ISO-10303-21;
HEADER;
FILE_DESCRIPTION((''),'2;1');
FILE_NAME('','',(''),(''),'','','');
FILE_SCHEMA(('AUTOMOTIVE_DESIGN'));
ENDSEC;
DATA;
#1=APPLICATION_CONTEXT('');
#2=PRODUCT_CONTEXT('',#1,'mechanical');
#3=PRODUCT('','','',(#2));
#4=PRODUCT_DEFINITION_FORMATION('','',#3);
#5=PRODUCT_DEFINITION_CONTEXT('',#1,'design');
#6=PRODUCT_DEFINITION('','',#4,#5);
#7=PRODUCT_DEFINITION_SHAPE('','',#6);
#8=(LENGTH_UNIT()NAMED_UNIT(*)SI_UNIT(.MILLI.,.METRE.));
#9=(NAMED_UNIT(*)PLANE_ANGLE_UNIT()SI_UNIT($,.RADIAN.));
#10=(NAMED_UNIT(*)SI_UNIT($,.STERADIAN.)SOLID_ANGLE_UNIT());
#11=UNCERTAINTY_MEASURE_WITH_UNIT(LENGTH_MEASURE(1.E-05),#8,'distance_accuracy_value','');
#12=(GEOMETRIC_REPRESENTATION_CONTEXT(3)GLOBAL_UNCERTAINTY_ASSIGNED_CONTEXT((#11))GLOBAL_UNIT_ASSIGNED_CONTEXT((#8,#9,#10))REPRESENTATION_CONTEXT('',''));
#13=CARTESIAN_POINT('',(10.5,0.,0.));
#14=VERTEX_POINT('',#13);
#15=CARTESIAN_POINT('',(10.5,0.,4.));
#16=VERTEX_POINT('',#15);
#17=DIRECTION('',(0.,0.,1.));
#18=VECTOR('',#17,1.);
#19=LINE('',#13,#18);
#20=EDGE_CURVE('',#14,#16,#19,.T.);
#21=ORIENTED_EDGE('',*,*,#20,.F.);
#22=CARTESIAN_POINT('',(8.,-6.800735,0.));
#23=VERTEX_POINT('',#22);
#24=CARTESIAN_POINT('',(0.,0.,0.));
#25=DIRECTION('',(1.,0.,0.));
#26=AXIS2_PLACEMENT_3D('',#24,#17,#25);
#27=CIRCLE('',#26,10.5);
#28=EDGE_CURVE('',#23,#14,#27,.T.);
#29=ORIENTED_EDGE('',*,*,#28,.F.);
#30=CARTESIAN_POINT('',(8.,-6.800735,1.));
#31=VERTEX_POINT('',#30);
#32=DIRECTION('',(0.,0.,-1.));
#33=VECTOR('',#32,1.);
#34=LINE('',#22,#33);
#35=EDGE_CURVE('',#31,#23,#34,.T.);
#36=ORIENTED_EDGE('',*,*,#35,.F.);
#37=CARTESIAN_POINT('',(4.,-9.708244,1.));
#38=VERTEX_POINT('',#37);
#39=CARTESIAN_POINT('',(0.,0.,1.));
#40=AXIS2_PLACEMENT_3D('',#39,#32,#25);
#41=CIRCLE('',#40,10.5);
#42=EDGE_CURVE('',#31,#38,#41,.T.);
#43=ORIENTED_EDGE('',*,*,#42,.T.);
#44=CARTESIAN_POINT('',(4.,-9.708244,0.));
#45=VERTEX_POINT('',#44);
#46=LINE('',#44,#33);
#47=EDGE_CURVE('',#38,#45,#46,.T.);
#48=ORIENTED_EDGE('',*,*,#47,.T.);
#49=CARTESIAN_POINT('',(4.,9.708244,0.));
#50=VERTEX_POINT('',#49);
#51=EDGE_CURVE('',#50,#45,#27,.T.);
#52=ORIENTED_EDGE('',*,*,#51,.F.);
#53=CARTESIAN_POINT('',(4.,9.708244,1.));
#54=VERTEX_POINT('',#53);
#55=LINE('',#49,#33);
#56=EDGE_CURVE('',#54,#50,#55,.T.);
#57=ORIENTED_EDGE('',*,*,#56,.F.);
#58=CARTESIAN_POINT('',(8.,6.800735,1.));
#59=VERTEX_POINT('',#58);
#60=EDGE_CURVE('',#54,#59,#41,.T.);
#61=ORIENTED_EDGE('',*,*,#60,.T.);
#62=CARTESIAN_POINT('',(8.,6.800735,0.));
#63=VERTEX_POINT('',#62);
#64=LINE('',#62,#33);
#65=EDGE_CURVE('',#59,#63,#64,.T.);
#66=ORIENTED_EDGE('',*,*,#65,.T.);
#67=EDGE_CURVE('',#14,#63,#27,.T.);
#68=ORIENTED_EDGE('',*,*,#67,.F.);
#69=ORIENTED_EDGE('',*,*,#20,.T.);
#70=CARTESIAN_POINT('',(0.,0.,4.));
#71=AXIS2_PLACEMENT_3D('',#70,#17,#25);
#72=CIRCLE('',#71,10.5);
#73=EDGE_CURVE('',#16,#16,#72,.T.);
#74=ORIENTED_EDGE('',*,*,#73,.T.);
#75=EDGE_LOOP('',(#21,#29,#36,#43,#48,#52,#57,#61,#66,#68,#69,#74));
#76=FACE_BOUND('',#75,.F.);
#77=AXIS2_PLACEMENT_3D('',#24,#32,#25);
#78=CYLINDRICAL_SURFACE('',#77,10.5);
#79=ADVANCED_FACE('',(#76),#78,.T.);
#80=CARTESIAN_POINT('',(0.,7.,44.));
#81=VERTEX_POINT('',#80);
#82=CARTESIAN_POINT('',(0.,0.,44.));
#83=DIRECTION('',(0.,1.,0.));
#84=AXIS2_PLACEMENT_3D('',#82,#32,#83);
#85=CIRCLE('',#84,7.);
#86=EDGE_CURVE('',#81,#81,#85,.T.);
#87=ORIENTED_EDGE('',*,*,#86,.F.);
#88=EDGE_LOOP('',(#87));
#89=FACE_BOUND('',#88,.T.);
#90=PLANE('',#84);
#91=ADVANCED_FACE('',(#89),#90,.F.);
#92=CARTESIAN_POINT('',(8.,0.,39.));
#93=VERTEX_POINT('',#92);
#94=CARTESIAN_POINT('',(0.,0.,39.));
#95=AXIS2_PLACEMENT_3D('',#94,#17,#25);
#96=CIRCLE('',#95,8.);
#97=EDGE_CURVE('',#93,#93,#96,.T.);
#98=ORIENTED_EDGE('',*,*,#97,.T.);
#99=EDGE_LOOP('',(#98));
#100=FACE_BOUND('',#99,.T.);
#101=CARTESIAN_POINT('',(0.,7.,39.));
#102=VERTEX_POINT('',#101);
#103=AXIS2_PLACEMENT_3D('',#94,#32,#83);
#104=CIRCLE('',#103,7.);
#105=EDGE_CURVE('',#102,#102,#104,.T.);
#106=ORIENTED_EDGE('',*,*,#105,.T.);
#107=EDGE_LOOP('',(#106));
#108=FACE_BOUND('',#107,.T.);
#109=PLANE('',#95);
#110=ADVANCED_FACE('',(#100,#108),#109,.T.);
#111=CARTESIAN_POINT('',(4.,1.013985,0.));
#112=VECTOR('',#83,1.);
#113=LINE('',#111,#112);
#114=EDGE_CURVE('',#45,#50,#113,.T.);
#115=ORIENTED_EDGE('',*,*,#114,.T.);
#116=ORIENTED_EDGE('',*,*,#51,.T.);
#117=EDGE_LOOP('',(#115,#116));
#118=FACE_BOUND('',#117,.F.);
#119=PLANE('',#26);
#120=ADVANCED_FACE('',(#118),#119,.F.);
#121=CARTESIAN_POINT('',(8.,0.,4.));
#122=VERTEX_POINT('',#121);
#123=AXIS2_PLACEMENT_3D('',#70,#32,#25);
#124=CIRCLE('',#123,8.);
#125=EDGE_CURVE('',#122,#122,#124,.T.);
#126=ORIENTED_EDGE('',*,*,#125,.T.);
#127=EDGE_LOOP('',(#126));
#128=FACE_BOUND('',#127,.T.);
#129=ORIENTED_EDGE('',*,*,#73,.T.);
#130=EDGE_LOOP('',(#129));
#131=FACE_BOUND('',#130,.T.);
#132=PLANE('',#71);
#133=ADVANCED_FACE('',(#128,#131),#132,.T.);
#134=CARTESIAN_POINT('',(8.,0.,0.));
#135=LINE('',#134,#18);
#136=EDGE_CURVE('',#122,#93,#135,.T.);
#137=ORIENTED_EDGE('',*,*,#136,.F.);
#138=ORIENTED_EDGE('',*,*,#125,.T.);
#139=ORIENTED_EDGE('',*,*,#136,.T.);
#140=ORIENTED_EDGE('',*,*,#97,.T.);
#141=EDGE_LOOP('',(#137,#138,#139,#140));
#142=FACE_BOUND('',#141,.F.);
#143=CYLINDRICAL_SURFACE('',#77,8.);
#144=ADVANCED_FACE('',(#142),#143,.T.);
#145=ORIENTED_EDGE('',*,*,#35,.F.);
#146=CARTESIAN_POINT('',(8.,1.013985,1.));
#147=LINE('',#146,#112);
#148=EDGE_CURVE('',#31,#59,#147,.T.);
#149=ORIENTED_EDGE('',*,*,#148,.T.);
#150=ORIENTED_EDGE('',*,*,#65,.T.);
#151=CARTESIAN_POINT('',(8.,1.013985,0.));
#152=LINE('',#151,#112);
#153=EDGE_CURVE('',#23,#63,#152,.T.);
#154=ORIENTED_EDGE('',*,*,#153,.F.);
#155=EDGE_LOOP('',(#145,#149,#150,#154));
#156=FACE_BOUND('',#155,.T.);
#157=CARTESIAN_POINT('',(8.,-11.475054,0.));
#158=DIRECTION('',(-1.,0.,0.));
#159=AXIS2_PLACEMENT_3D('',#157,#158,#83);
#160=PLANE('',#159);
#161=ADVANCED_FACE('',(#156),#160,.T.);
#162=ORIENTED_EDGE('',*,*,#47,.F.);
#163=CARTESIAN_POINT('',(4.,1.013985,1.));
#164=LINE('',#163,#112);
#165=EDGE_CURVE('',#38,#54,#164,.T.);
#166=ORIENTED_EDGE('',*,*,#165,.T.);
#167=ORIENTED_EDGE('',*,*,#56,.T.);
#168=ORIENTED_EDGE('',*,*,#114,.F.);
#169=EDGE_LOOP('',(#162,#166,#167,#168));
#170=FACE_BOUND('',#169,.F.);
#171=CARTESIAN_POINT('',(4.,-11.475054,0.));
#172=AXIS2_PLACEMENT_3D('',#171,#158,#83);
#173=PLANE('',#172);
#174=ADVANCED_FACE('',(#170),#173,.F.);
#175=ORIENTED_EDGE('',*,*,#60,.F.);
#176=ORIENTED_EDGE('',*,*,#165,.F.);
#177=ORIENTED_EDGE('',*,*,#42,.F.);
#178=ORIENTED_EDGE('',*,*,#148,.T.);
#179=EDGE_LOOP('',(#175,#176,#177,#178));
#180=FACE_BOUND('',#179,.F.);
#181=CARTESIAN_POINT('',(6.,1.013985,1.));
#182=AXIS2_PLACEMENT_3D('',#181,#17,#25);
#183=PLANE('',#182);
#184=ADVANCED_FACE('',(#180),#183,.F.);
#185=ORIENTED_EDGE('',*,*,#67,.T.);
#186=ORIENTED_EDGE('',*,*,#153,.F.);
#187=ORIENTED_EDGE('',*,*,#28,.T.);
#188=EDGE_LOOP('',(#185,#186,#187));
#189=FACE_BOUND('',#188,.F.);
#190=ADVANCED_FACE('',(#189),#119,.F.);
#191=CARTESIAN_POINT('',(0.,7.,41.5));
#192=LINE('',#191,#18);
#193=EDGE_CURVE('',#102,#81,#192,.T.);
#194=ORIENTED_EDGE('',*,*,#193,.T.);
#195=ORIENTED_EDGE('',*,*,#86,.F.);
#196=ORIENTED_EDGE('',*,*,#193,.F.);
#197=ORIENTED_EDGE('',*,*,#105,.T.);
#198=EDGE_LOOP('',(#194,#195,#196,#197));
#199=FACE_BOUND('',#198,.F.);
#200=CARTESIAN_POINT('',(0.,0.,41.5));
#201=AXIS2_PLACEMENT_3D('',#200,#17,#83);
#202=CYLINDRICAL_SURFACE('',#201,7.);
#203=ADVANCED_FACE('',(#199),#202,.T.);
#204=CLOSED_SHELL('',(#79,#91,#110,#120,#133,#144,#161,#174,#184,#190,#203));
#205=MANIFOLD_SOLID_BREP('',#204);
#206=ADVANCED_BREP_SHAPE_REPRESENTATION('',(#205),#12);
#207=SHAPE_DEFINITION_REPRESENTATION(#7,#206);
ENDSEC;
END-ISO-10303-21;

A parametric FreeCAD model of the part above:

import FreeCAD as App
import Part
import Sketcher

V = App.Vector
Q = App.Units.Quantity

doc = App.newDocument("Part")
body = doc.addObject("PartDesign::Body", "Body")

# Sketch on XY plane
sketch1 = doc.addObject("Sketcher::SketchObject", "Sketch")
body.addObject(sketch1)
sketch1.AttachmentSupport = (doc.XY_Plane, [""])
sketch1.MapMode = "FlatFace"
sketch1.addGeometry(Part.Circle(V(0, 0, 0), V(0, 0, 1), 10), False)
sketch1.addConstraint([
    Sketcher.Constraint("Coincident", 0, 3, -1, 1),
    Sketcher.Constraint("Diameter", 0, Q("21 mm")),
])
pad1 = doc.addObject("PartDesign::Pad", "Pad")
body.addObject(pad1)
pad1.Profile = sketch1
pad1.Length = 4

# Sketch on XY plane
sketch2 = doc.addObject("Sketcher::SketchObject", "Sketch001")
body.addObject(sketch2)
sketch2.AttachmentSupport = (doc.XY_Plane, [""])
sketch2.MapMode = "FlatFace"
sketch2.addGeometry(Part.Circle(V(0, 0, 0), V(0, 0, 1), 8), False)
sketch2.addConstraint([
    Sketcher.Constraint("Coincident", 0, 3, -1, 1),
    Sketcher.Constraint("Diameter", 0, Q("16 mm")),
])
pad2 = doc.addObject("PartDesign::Pad", "Pad001")
body.addObject(pad2)
pad2.Profile = sketch2
pad2.Length = 39

# Sketch on YZ plane
sketch3 = doc.addObject("Sketcher::SketchObject", "Sketch002")
body.addObject(sketch3)
sketch3.AttachmentSupport = (doc.YZ_Plane, [""])
sketch3.MapMode = "FlatFace"
sketch3.addGeometry([
    Part.LineSegment(V(0, 44, 0), V(0, 39, 0)),
    Part.LineSegment(V(0, 39, 0), V(7, 39, 0)),
    Part.LineSegment(V(7, 39, 0), V(7, 44, 0)),
    Part.LineSegment(V(7, 44, 0), V(0, 44, 0)),
], False)
sketch3.addConstraint([
    Sketcher.Constraint("Coincident", 0, 2, 1, 1),
    Sketcher.Constraint("Coincident", 1, 2, 2, 1),
    Sketcher.Constraint("Coincident", 2, 2, 3, 1),
    Sketcher.Constraint("Coincident", 3, 2, 0, 1),
    Sketcher.Constraint("Vertical", 0),
    Sketcher.Constraint("Horizontal", 1),
    Sketcher.Constraint("Vertical", 2),
    Sketcher.Constraint("Horizontal", 3),
    Sketcher.Constraint("PointOnObject", 0, 2, -2),
    Sketcher.Constraint("DistanceX", 1, 1, 1, 2, Q("7 mm")),
    Sketcher.Constraint("DistanceY", 0, 2, 0, 1, Q("5 mm")),
    Sketcher.Constraint("DistanceY", -1, 1, 0, 2, Q("39 mm")),
])
revolution = doc.addObject("PartDesign::Revolution", "Revolution")
body.addObject(revolution)
revolution.Profile = sketch3
revolution.ReferenceAxis = (sketch3, ["V_Axis"])
revolution.Angle = 360

# Sketch on XY plane
sketch4 = doc.addObject("Sketcher::SketchObject", "Sketch003")
body.addObject(sketch4)
sketch4.AttachmentSupport = (doc.XY_Plane, [""])
sketch4.MapMode = "FlatFace"
sketch4.addGeometry([
    Part.LineSegment(V(4, 13.5, 0), V(4, -11.5, 0)),
    Part.LineSegment(V(4, -11.5, 0), V(8, -11.5, 0)),
    Part.LineSegment(V(8, -11.5, 0), V(8, 13.5, 0)),
    Part.LineSegment(V(8, 13.5, 0), V(4, 13.5, 0)),
], False)
sketch4.addConstraint([
    Sketcher.Constraint("Coincident", 0, 2, 1, 1),
    Sketcher.Constraint("Coincident", 1, 2, 2, 1),
    Sketcher.Constraint("Coincident", 2, 2, 3, 1),
    Sketcher.Constraint("Coincident", 3, 2, 0, 1),
    Sketcher.Constraint("Vertical", 0),
    Sketcher.Constraint("Horizontal", 1),
    Sketcher.Constraint("Vertical", 2),
    Sketcher.Constraint("Horizontal", 3),
    Sketcher.Constraint("DistanceX", 1, 1, 1, 2, Q("4 mm")),
    Sketcher.Constraint("DistanceX", -1, 1, 0, 2, Q("4 mm")),
    Sketcher.Constraint("DistanceY", 0, 2, 0, 1, Q("24.978078 mm")),
    Sketcher.Constraint("DistanceY", 0, 2, -1, 1, Q("11.475054 mm")),
])
pocket1 = doc.addObject("PartDesign::Pocket", "Pocket")
body.addObject(pocket1)
pocket1.Profile = sketch4
pocket1.Length = 1
pocket1.Reversed = True

doc.recompute()
